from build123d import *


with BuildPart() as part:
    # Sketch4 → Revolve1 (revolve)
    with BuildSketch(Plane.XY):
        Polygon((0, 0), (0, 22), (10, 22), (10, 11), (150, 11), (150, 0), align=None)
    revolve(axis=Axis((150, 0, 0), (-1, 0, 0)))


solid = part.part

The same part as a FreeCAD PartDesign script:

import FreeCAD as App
import Part
import Sketcher

V = App.Vector
Q = App.Units.Quantity

doc = App.newDocument("Part")
body = doc.addObject("PartDesign::Body", "Body")

sketch1 = doc.addObject("Sketcher::SketchObject", "Sketch")
body.addObject(sketch1)
sketch1.AttachmentSupport = (doc.XY_Plane, [""])
sketch1.MapMode = "FlatFace"
sketch1.addGeometry(Part.LineSegment(V(0, 22, 0), V(0, 0, 0)), False)
sketch1.addGeometry(Part.LineSegment(V(0, 0, 0), V(150, 0, 0)), False)
sketch1.addGeometry(Part.LineSegment(V(150, 0, 0), V(150, 11, 0)), False)
sketch1.addGeometry(Part.LineSegment(V(150, 11, 0), V(10, 11, 0)), False)
sketch1.addGeometry(Part.LineSegment(V(10, 11, 0), V(10, 22, 0)), False)
sketch1.addGeometry(Part.LineSegment(V(10, 22, 0), V(0, 22, 0)), False)
sketch1.addConstraint(Sketcher.Constraint("Coincident", 0, 2, 1, 1))
sketch1.addConstraint(Sketcher.Constraint("Coincident", 1, 2, 2, 1))
sketch1.addConstraint(Sketcher.Constraint("Coincident", 2, 2, 3, 1))
sketch1.addConstraint(Sketcher.Constraint("Coincident", 3, 2, 4, 1))
sketch1.addConstraint(Sketcher.Constraint("Coincident", 4, 2, 5, 1))
sketch1.addConstraint(Sketcher.Constraint("Coincident", 5, 2, 0, 1))
sketch1.addConstraint(Sketcher.Constraint("Vertical", 0))
sketch1.addConstraint(Sketcher.Constraint("Horizontal", 1))
sketch1.addConstraint(Sketcher.Constraint("Vertical", 2))
sketch1.addConstraint(Sketcher.Constraint("Horizontal", 3))
sketch1.addConstraint(Sketcher.Constraint("Vertical", 4))
sketch1.addConstraint(Sketcher.Constraint("Horizontal", 5))
sketch1.addConstraint(Sketcher.Constraint("Coincident", 0, 2, -1, 1))
sketch1.addConstraint(Sketcher.Constraint("Equal", 2, 4))
sketch1.addConstraint(Sketcher.Constraint("DistanceX", 1, 1, 1, 2, Q("150 mm")))
sketch1.addConstraint(Sketcher.Constraint("DistanceX", 3, 2, 3, 1, Q("140 mm")))
sketch1.addConstraint(Sketcher.Constraint("DistanceY", 0, 2, 0, 1, Q("22 mm")))
revolution = doc.addObject("PartDesign::Revolution", "Revolution")
body.addObject(revolution)
revolution.Profile = sketch1
revolution.ReferenceAxis = (sketch1, ["H_Axis"])
revolution.Angle = 360

doc.recompute()
